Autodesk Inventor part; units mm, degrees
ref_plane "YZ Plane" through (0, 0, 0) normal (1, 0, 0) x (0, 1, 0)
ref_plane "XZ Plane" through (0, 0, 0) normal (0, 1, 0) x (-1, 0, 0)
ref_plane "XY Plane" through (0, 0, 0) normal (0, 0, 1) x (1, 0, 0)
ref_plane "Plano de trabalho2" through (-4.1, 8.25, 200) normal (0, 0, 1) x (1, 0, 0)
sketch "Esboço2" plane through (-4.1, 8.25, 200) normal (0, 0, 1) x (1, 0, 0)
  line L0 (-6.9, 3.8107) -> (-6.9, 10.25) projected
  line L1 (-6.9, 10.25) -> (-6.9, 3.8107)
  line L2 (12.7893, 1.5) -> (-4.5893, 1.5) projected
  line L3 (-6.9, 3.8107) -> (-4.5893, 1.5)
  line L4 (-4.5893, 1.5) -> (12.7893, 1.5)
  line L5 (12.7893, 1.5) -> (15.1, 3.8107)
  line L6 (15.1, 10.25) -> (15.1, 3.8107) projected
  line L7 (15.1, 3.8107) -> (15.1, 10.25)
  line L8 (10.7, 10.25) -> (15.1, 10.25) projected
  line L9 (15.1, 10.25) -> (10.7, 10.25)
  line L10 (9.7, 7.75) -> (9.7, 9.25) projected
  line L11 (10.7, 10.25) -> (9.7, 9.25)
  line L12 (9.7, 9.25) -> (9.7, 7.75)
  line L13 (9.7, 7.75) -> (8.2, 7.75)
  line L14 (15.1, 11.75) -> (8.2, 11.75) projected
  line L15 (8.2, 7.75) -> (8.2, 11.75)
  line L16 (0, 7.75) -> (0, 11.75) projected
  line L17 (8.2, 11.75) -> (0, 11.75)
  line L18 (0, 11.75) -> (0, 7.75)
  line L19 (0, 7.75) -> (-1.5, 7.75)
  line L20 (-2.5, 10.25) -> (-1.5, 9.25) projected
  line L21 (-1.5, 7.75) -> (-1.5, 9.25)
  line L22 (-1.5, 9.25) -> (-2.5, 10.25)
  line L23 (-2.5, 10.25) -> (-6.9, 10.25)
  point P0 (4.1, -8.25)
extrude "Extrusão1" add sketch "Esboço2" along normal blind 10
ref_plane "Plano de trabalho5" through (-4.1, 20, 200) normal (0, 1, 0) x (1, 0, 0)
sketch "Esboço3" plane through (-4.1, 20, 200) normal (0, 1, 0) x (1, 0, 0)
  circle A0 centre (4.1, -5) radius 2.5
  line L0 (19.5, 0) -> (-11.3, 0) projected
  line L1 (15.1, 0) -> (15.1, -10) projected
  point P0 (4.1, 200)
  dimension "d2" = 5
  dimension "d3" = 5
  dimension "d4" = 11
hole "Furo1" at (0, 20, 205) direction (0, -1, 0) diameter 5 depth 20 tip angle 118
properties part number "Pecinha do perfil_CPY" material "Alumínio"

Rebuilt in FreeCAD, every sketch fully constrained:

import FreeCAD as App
import Part
import Sketcher

doc = App.newDocument("Part")
params = doc.addObject("Spreadsheet::Sheet", "Params")
for row, (alias, value) in enumerate([
    ("sketch1_height", "4 mm"),
    ("sketch1_width", "4.4 mm"),
    ("sketch1_width2", "1.5 mm"),
    ("sketch1_width3", "8.2 mm"),
    ("pad1_length", "10 mm"),
    ("sketch2_diameter", "5 mm"),
    ("hole_diameter", "5 mm"),
    ("hole_depth", "20 mm"),
], start=1):
    params.set(f"A{row}", alias)
    params.set(f"B{row}", "=" + value)
    params.setAlias(f"B{row}", alias)

body = doc.addObject("PartDesign::Body", "Body")

# Sketch on XY plane
sketch1 = body.newObject("Sketcher::SketchObject", "Sketch")
sketch1.AttachmentSupport = (doc.getObject("XY_Plane"), [""])
sketch1.MapMode = "FlatFace"
sketch1.AttachmentOffset = App.Placement(App.Vector(0, 0, 200), App.Rotation())
sketch1.addGeometry([
    Part.LineSegment(App.Vector(-11, 18.5, 0), App.Vector(-11, 12.1, 0)),  # 0
    Part.LineSegment(App.Vector(-11, 12.1, 0), App.Vector(-8.7, 9.8, 0)),  # 1
    Part.LineSegment(App.Vector(-8.7, 9.8, 0), App.Vector(8.7, 9.8, 0)),  # 2
    Part.LineSegment(App.Vector(8.7, 9.8, 0), App.Vector(11, 12.1, 0)),  # 3
    Part.LineSegment(App.Vector(11, 12.1, 0), App.Vector(11, 18.5, 0)),  # 4
    Part.LineSegment(App.Vector(11, 18.5, 0), App.Vector(6.6, 18.5, 0)),  # 5
    Part.LineSegment(App.Vector(6.6, 18.5, 0), App.Vector(5.6, 17.5, 0)),  # 6
    Part.LineSegment(App.Vector(5.6, 17.5, 0), App.Vector(5.6, 16, 0)),  # 7
    Part.LineSegment(App.Vector(5.6, 16, 0), App.Vector(4.1, 16, 0)),  # 8
    Part.LineSegment(App.Vector(4.1, 16, 0), App.Vector(4.1, 20, 0)),  # 9
    Part.LineSegment(App.Vector(4.1, 20, 0), App.Vector(-4.1, 20, 0)),  # 10
    Part.LineSegment(App.Vector(-4.1, 20, 0), App.Vector(-4.1, 16, 0)),  # 11
    Part.LineSegment(App.Vector(-4.1, 16, 0), App.Vector(-5.6, 16, 0)),  # 12
    Part.LineSegment(App.Vector(-5.6, 16, 0), App.Vector(-5.6, 17.5, 0)),  # 13
    Part.LineSegment(App.Vector(-5.6, 17.5, 0), App.Vector(-6.6, 18.5, 0)),  # 14
    Part.LineSegment(App.Vector(-6.6, 18.5, 0), App.Vector(-11, 18.5, 0)),  # 15
], False)
sketch1.addConstraint([
    Sketcher.Constraint("Coincident", 0, 2, 1, 1),
    Sketcher.Constraint("Coincident", 1, 2, 2, 1),
    Sketcher.Constraint("Coincident", 2, 2, 3, 1),
    Sketcher.Constraint("Coincident", 3, 2, 4, 1),
    Sketcher.Constraint("Coincident", 4, 2, 5, 1),
    Sketcher.Constraint("Coincident", 5, 2, 6, 1),
    Sketcher.Constraint("Coincident", 6, 2, 7, 1),
    Sketcher.Constraint("Coincident", 7, 2, 8, 1),
    Sketcher.Constraint("Coincident", 8, 2, 9, 1),
    Sketcher.Constraint("Coincident", 9, 2, 10, 1),
    Sketcher.Constraint("Coincident", 10, 2, 11, 1),
    Sketcher.Constraint("Coincident", 11, 2, 12, 1),
    Sketcher.Constraint("Coincident", 12, 2, 13, 1),
    Sketcher.Constraint("Coincident", 13, 2, 14, 1),
    Sketcher.Constraint("Coincident", 14, 2, 15, 1),
    Sketcher.Constraint("Coincident", 15, 2, 0, 1),
    Sketcher.Constraint("Vertical", 0),
    Sketcher.Constraint("Horizontal", 2),
    Sketcher.Constraint("Vertical", 4),
    Sketcher.Constraint("Horizontal", 5),
    Sketcher.Constraint("Vertical", 7),
    Sketcher.Constraint("Horizontal", 8),
    Sketcher.Constraint("Vertical", 9),
    Sketcher.Constraint("Horizontal", 10),
    Sketcher.Constraint("Vertical", 11),
    Sketcher.Constraint("Horizontal", 12),
    Sketcher.Constraint("Vertical", 13),
    Sketcher.Constraint("Horizontal", 15),
    Sketcher.Constraint("Symmetric", 0, 2, 3, 2, -2),
    Sketcher.Constraint("Symmetric", 8, 2, 11, 2, -2),
    Sketcher.Constraint("Symmetric", 6, 2, 13, 2, -2),
    Sketcher.Constraint("Symmetric", 5, 2, 14, 2, -2),
    Sketcher.Constraint("Perpendicular", 1, 3),
    Sketcher.Constraint("Parallel", 3, 6),
    Sketcher.Constraint("Perpendicular", 6, 14),
    Sketcher.Constraint("Equal", 12, 7),
    Sketcher.Constraint("DistanceY", 9, 1, 9, 2, 4.0),
    Sketcher.Constraint("DistanceX", 5, 2, 5, 1, 4.4),
    Sketcher.Constraint("DistanceX", 8, 2, 8, 1, 1.5),
    Sketcher.Constraint("DistanceX", 10, 2, 10, 1, 8.2),
    Sketcher.Constraint("DistanceX", 0, 2, -1, 1, 11.0),
    Sketcher.Constraint("DistanceY", -1, 1, 7, 2, 16.0),
    Sketcher.Constraint("DistanceY", -1, 1, 1, 2, 9.75),
    Sketcher.Constraint("DistanceX", 2, 1, 2, 2, 17.3786),
])
sketch1.setExpression("Constraints[36]", "Params.sketch1_height")
sketch1.setExpression("Constraints[37]", "Params.sketch1_width")
sketch1.setExpression("Constraints[38]", "Params.sketch1_width2")
sketch1.setExpression("Constraints[39]", "Params.sketch1_width3")
pad1 = body.newObject("PartDesign::Pad", "Pad")
pad1.Profile = sketch1
pad1.setExpression("Length", "Params.pad1_length")

# Sketch on XZ plane
sketch2 = body.newObject("Sketcher::SketchObject", "Sketch001")
sketch2.AttachmentSupport = (doc.getObject("XZ_Plane"), [""])
sketch2.MapMode = "FlatFace"
sketch2.AttachmentOffset = App.Placement(App.Vector(0, 0, -20), App.Rotation())
sketch2.addGeometry(Part.Circle(App.Vector(0, 205, 0), App.Vector(0, 0, 1), 2.5), False)
sketch2.addConstraint([
    Sketcher.Constraint("PointOnObject", 0, 3, -2),
    Sketcher.Constraint("Diameter", 0, 5.0),
    Sketcher.Constraint("DistanceY", -1, 1, 0, 3, 205.0),
])
sketch2.setExpression("Constraints[1]", "Params.sketch2_diameter")
doc.recompute()
hole = body.newObject("PartDesign::Hole", "Hole")
hole.Profile = sketch2
hole.ThreadType = "None"
hole.setExpression("Diameter", "Params.hole_diameter")
hole.DepthType = "Dimension"
hole.setExpression("Depth", "Params.hole_depth")
hole.DrillPoint = "Angled"
hole.DrillPointAngle = 118
hole.Reversed = True

doc.recompute()
